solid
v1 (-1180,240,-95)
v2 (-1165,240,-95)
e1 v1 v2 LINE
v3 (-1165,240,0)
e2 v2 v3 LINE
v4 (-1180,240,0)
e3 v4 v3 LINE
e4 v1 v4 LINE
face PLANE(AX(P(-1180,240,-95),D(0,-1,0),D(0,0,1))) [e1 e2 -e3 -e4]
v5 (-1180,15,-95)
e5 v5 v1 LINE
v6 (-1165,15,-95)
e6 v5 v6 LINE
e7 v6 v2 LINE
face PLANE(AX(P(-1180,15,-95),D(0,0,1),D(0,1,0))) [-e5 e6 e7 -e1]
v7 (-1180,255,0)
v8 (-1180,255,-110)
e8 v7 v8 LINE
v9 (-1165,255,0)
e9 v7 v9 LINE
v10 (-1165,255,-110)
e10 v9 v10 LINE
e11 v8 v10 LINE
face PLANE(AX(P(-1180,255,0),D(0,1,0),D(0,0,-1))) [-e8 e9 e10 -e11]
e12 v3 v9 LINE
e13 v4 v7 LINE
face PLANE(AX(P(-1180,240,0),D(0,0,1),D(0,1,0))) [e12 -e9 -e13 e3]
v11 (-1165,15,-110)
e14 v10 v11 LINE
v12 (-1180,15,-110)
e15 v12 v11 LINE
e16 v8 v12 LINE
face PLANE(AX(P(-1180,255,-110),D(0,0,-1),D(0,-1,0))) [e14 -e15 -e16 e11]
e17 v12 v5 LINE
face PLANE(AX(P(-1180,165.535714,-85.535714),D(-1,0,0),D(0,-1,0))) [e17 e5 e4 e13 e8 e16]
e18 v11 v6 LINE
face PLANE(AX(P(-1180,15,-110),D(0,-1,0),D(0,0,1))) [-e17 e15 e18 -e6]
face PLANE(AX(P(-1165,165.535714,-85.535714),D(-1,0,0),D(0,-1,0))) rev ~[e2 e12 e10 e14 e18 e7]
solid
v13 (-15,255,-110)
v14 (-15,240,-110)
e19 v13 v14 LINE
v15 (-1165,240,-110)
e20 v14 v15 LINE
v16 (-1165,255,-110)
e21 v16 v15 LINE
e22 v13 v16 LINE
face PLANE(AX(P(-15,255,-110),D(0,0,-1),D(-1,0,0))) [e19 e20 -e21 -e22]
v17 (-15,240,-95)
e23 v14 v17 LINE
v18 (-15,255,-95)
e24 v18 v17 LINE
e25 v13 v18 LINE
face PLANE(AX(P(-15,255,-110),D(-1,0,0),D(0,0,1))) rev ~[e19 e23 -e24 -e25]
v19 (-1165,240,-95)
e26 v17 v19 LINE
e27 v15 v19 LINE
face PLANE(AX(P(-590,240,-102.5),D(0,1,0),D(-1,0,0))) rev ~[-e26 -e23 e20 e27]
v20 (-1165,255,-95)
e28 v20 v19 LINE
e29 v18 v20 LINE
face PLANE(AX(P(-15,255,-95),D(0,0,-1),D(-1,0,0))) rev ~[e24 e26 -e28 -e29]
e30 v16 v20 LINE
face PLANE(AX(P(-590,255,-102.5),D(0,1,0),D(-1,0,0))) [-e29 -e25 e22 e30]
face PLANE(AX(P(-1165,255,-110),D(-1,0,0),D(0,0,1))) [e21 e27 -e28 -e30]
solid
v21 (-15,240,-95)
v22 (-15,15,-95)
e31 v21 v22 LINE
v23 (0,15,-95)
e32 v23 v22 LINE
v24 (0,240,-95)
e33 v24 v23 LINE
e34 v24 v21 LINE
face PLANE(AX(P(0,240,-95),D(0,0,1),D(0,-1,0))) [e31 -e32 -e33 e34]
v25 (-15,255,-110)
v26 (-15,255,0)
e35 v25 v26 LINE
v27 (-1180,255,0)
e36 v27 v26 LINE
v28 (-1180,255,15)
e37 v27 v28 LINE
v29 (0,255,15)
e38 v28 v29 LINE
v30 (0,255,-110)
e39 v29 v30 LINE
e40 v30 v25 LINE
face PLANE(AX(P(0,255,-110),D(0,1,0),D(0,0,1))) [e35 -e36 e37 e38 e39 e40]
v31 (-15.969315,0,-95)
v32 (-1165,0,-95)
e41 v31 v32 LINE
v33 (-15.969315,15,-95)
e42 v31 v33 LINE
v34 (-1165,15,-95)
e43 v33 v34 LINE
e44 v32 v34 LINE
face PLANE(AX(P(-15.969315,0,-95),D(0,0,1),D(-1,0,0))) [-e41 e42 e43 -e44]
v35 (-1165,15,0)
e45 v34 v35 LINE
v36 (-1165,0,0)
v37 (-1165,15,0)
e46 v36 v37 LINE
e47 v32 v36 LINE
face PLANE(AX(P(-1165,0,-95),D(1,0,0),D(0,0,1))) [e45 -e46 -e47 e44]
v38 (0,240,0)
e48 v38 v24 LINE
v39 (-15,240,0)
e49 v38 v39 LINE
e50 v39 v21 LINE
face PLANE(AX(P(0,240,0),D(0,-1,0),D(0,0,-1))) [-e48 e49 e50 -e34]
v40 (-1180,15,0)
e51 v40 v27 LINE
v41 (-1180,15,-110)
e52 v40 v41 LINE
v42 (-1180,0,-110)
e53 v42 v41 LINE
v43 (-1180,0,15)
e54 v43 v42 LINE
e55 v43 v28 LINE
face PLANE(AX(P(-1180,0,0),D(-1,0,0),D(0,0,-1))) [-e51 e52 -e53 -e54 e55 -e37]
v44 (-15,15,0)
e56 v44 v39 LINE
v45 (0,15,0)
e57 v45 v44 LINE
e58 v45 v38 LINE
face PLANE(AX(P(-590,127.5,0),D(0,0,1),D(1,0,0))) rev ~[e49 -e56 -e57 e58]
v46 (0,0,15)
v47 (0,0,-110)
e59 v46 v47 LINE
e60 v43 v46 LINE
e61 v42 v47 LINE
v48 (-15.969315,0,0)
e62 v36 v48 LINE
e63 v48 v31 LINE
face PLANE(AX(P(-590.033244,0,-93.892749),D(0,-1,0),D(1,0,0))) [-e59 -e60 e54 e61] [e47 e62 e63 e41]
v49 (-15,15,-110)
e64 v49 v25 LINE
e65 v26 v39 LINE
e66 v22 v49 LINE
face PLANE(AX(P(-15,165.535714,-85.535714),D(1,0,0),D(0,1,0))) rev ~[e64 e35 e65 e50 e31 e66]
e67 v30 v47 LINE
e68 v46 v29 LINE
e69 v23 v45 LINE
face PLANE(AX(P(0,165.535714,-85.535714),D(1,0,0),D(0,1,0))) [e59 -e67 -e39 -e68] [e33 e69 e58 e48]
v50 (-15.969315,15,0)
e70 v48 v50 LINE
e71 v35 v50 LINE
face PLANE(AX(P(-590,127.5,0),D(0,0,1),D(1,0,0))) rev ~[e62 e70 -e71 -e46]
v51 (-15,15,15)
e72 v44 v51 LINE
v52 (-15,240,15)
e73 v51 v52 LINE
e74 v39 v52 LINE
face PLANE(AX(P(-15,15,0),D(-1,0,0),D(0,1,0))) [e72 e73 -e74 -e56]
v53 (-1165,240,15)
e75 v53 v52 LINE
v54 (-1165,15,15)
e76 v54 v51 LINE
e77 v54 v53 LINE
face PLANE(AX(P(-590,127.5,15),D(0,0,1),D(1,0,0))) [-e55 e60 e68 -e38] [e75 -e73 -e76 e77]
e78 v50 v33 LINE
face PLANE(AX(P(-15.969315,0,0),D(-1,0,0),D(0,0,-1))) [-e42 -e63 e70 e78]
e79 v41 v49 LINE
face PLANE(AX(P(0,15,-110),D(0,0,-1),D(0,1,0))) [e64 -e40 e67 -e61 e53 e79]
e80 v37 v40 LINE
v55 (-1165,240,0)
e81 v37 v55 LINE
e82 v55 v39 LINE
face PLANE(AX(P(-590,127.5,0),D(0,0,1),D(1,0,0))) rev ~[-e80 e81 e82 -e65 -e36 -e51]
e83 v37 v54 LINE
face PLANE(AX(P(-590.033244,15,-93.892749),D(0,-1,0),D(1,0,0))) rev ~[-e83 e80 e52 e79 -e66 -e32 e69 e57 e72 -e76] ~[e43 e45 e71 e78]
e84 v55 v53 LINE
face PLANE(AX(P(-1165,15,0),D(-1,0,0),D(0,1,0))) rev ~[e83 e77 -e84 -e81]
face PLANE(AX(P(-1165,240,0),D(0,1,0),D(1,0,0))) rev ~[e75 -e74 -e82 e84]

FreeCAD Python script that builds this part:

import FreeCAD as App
import Part
import Sketcher
from FreeCAD import Vector

doc = App.newDocument("Part")
body = doc.addObject("PartDesign::Body", "Body")

# Sketch on XY plane
sketch1 = body.newObject("Sketcher::SketchObject", "Sketch")
sketch1.AttachmentSupport = (doc.getObject("XY_Plane"), [""])
sketch1.MapMode = "FlatFace"
sketch1.addGeometry([
    Part.LineSegment(Vector(-1180, 255, 0), Vector(-1180, 0, 0)),  # 0
    Part.LineSegment(Vector(-1180, 0, 0), Vector(0, 0, 0)),  # 1
    Part.LineSegment(Vector(0, 0, 0), Vector(0, 255, 0)),  # 2
    Part.LineSegment(Vector(0, 255, 0), Vector(-1180, 255, 0)),  # 3
    Part.LineSegment(Vector(-15, 15, 0), Vector(-1165, 15, 0)),  # 4
    Part.LineSegment(Vector(-1165, 15, 0), Vector(-1165, 240, 0)),  # 5
    Part.LineSegment(Vector(-1165, 240, 0), Vector(-15, 240, 0)),  # 6
    Part.LineSegment(Vector(-15, 240, 0), Vector(-15, 15, 0)),  # 7
], False)
sketch1.addConstraint([
    Sketcher.Constraint("Coincident", 0, 2, 1, 1),
    Sketcher.Constraint("Coincident", 1, 2, 2, 1),
    Sketcher.Constraint("Coincident", 2, 2, 3, 1),
    Sketcher.Constraint("Coincident", 3, 2, 0, 1),
    Sketcher.Constraint("Coincident", 4, 2, 5, 1),
    Sketcher.Constraint("Coincident", 5, 2, 6, 1),
    Sketcher.Constraint("Coincident", 6, 2, 7, 1),
    Sketcher.Constraint("Coincident", 7, 2, 4, 1),
    Sketcher.Constraint("Vertical", 0),
    Sketcher.Constraint("Horizontal", 1),
    Sketcher.Constraint("Vertical", 2),
    Sketcher.Constraint("Horizontal", 3),
    Sketcher.Constraint("Horizontal", 4),
    Sketcher.Constraint("Vertical", 5),
    Sketcher.Constraint("Horizontal", 6),
    Sketcher.Constraint("Vertical", 7),
    Sketcher.Constraint("Coincident", 1, 2, -1, 1),
    Sketcher.Constraint("DistanceX", 1, 1, 1, 2, 1180.0),
    Sketcher.Constraint("DistanceX", 4, 2, 4, 1, 1150.0),
    Sketcher.Constraint("DistanceY", 0, 2, 0, 1, 255.0),
    Sketcher.Constraint("DistanceY", 5, 1, 5, 2, 225.0),
    Sketcher.Constraint("DistanceX", 4, 2, -1, 1, 1165.0),
    Sketcher.Constraint("DistanceY", -1, 1, 4, 2, 15.0),
])
pad1 = body.newObject("PartDesign::Pad", "Pad")
pad1.Profile = sketch1
pad1.Length = 15

# Sketch on XZ plane
sketch2 = body.newObject("Sketcher::SketchObject", "Sketch001")
sketch2.AttachmentSupport = (doc.getObject("XZ_Plane"), [""])
sketch2.MapMode = "FlatFace"
sketch2.addGeometry([
    Part.LineSegment(Vector(0, -110, 0), Vector(0, 0, 0)),  # 0
    Part.LineSegment(Vector(0, 0, 0), Vector(-16, 0, 0)),  # 1
    Part.LineSegment(Vector(-16, 0, 0), Vector(-16, -95, 0)),  # 2
    Part.LineSegment(Vector(-16, -95, 0), Vector(-1165, -95, 0)),  # 3
    Part.LineSegment(Vector(-1165, -95, 0), Vector(-1165, 0, 0)),  # 4
    Part.LineSegment(Vector(-1165, 0, 0), Vector(-1180, 0, 0)),  # 5
    Part.LineSegment(Vector(-1180, 0, 0), Vector(-1180, -110, 0)),  # 6
    Part.LineSegment(Vector(-1180, -110, 0), Vector(0, -110, 0)),  # 7
], False)
sketch2.addConstraint([
    Sketcher.Constraint("Coincident", 0, 2, 1, 1),
    Sketcher.Constraint("Coincident", 1, 2, 2, 1),
    Sketcher.Constraint("Coincident", 2, 2, 3, 1),
    Sketcher.Constraint("Coincident", 3, 2, 4, 1),
    Sketcher.Constraint("Coincident", 4, 2, 5, 1),
    Sketcher.Constraint("Coincident", 5, 2, 6, 1),
    Sketcher.Constraint("Coincident", 6, 2, 7, 1),
    Sketcher.Constraint("Coincident", 7, 2, 0, 1),
    Sketcher.Constraint("Vertical", 0),
    Sketcher.Constraint("Horizontal", 1),
    Sketcher.Constraint("Vertical", 2),
    Sketcher.Constraint("Horizontal", 3),
    Sketcher.Constraint("Vertical", 4),
    Sketcher.Constraint("Horizontal", 5),
    Sketcher.Constraint("Vertical", 6),
    Sketcher.Constraint("Horizontal", 7),
    Sketcher.Constraint("Coincident", 0, 2, -1, 1),
    Sketcher.Constraint("PointOnObject", 4, 2, -1),
    Sketcher.Constraint("DistanceX", 5, 2, 5, 1, 15.0),
    Sketcher.Constraint("DistanceX", 7, 1, 7, 2, 1180.0),
    Sketcher.Constraint("DistanceY", 0, 1, 0, 2, 110.0),
    Sketcher.Constraint("DistanceY", 2, 2, 2, 1, 95.0),
    Sketcher.Constraint("DistanceX", 1, 2, 1, 1, 15.969315),
])
pad2 = body.newObject("PartDesign::Pad", "Pad001")
pad2.Profile = sketch2
pad2.Length = 15
pad2.Reversed = True

# Sketch on YZ plane
sketch3 = body.newObject("Sketcher::SketchObject", "Sketch002")
sketch3.AttachmentSupport = (doc.getObject("YZ_Plane"), [""])
sketch3.MapMode = "FlatFace"
sketch3.addGeometry([
    Part.LineSegment(Vector(15, -95, 0), Vector(15, -110, 0)),  # 0
    Part.LineSegment(Vector(15, -110, 0), Vector(255, -110, 0)),  # 1
    Part.LineSegment(Vector(255, -110, 0), Vector(255, 0, 0)),  # 2
    Part.LineSegment(Vector(255, 0, 0), Vector(240, 0, 0)),  # 3
    Part.LineSegment(Vector(240, 0, 0), Vector(240, -95, 0)),  # 4
    Part.LineSegment(Vector(240, -95, 0), Vector(15, -95, 0)),  # 5
], False)
sketch3.addConstraint([
    Sketcher.Constraint("Coincident", 0, 2, 1, 1),
    Sketcher.Constraint("Coincident", 1, 2, 2, 1),
    Sketcher.Constraint("Coincident", 2, 2, 3, 1),
    Sketcher.Constraint("Coincident", 3, 2, 4, 1),
    Sketcher.Constraint("Coincident", 4, 2, 5, 1),
    Sketcher.Constraint("Coincident", 5, 2, 0, 1),
    Sketcher.Constraint("Vertical", 0),
    Sketcher.Constraint("Horizontal", 1),
    Sketcher.Constraint("Vertical", 2),
    Sketcher.Constraint("Horizontal", 3),
    Sketcher.Constraint("Vertical", 4),
    Sketcher.Constraint("Horizontal", 5),
    Sketcher.Constraint("PointOnObject", 2, 2, -1),
    Sketcher.Constraint("Equal", 3, 0),
    Sketcher.Constraint("DistanceX", 1, 1, 1, 2, 240.0),
    Sketcher.Constraint("DistanceX", 3, 2, 3, 1, 15.0),
    Sketcher.Constraint("DistanceY", 2, 1, 2, 2, 110.0),
    Sketcher.Constraint("DistanceX", -1, 1, 0, 2, 15.0),
])
pad3 = body.newObject("PartDesign::Pad", "Pad002")
pad3.Profile = sketch3
pad3.Length = 15
pad3.Reversed = True
body2 = doc.addObject("PartDesign::Body", "Body001")

# Sketch on YZ plane
sketch4 = body2.newObject("Sketcher::SketchObject", "Sketch003")
sketch4.AttachmentSupport = (doc.getObject("YZ_Plane001"), [""])
sketch4.MapMode = "FlatFace"
sketch4.AttachmentOffset = App.Placement(Vector(0, 0, -1180), App.Rotation())
sketch4.addGeometry([
    Part.LineSegment(Vector(255, -110, 0), Vector(15, -110, 0)),  # 0
    Part.LineSegment(Vector(15, -110, 0), Vector(15, -95, 0)),  # 1
    Part.LineSegment(Vector(15, -95, 0), Vector(240, -95, 0)),  # 2
    Part.LineSegment(Vector(240, -95, 0), Vector(240, 0, 0)),  # 3
    Part.LineSegment(Vector(240, 0, 0), Vector(255, 0, 0)),  # 4
    Part.LineSegment(Vector(255, 0, 0), Vector(255, -110, 0)),  # 5
], False)
sketch4.addConstraint([
    Sketcher.Constraint("Coincident", 0, 2, 1, 1),
    Sketcher.Constraint("Coincident", 1, 2, 2, 1),
    Sketcher.Constraint("Coincident", 2, 2, 3, 1),
    Sketcher.Constraint("Coincident", 3, 2, 4, 1),
    Sketcher.Constraint("Coincident", 4, 2, 5, 1),
    Sketcher.Constraint("Coincident", 5, 2, 0, 1),
    Sketcher.Constraint("Horizontal", 0),
    Sketcher.Constraint("Vertical", 1),
    Sketcher.Constraint("Horizontal", 2),
    Sketcher.Constraint("Vertical", 3),
    Sketcher.Constraint("Horizontal", 4),
    Sketcher.Constraint("Vertical", 5),
    Sketcher.Constraint("PointOnObject", 3, 2, -1),
    Sketcher.Constraint("Equal", 4, 1),
    Sketcher.Constraint("DistanceX", 0, 2, 0, 1, 240.0),
    Sketcher.Constraint("DistanceX", 2, 1, 2, 2, 225.0),
    Sketcher.Constraint("DistanceY", 3, 1, 3, 2, 95.0),
    Sketcher.Constraint("DistanceX", -1, 1, 0, 2, 15.0),
])
pad4 = body2.newObject("PartDesign::Pad", "Pad003")
pad4.Profile = sketch4
pad4.Length = 15
body3 = doc.addObject("PartDesign::Body", "Body002")

# Sketch on XZ plane
sketch5 = body3.newObject("Sketcher::SketchObject", "Sketch004")
sketch5.AttachmentSupport = (doc.getObject("XZ_Plane002"), [""])
sketch5.MapMode = "FlatFace"
sketch5.AttachmentOffset = App.Placement(Vector(0, 0, -255), App.Rotation())
sketch5.addGeometry([
    Part.LineSegment(Vector(-15, -95, 0), Vector(-15, -110, 0)),
    Part.LineSegment(Vector(-15, -110, 0), Vector(-1165, -110, 0)),
    Part.LineSegment(Vector(-1165, -110, 0), Vector(-1165, -95, 0)),
    Part.LineSegment(Vector(-1165, -95, 0), Vector(-15, -95, 0)),
], False)
sketch5.addConstraint([
    Sketcher.Constraint("Coincident", 0, 2, 1, 1),
    Sketcher.Constraint("Coincident", 1, 2, 2, 1),
    Sketcher.Constraint("Coincident", 2, 2, 3, 1),
    Sketcher.Constraint("Coincident", 3, 2, 0, 1),
    Sketcher.Constraint("Vertical", 0),
    Sketcher.Constraint("Horizontal", 1),
    Sketcher.Constraint("Vertical", 2),
    Sketcher.Constraint("Horizontal", 3),
    Sketcher.Constraint("DistanceX", 1, 2, 1, 1, 1150.0),
    Sketcher.Constraint("DistanceY", 0, 2, 0, 1, 15.0),
    Sketcher.Constraint("DistanceX", 0, 2, -1, 1, 15.0),
    Sketcher.Constraint("DistanceY", 0, 2, -1, 1, 110.0),
])
pad5 = body3.newObject("PartDesign::Pad", "Pad004")
pad5.Profile = sketch5
pad5.Length = 15

doc.recompute()
